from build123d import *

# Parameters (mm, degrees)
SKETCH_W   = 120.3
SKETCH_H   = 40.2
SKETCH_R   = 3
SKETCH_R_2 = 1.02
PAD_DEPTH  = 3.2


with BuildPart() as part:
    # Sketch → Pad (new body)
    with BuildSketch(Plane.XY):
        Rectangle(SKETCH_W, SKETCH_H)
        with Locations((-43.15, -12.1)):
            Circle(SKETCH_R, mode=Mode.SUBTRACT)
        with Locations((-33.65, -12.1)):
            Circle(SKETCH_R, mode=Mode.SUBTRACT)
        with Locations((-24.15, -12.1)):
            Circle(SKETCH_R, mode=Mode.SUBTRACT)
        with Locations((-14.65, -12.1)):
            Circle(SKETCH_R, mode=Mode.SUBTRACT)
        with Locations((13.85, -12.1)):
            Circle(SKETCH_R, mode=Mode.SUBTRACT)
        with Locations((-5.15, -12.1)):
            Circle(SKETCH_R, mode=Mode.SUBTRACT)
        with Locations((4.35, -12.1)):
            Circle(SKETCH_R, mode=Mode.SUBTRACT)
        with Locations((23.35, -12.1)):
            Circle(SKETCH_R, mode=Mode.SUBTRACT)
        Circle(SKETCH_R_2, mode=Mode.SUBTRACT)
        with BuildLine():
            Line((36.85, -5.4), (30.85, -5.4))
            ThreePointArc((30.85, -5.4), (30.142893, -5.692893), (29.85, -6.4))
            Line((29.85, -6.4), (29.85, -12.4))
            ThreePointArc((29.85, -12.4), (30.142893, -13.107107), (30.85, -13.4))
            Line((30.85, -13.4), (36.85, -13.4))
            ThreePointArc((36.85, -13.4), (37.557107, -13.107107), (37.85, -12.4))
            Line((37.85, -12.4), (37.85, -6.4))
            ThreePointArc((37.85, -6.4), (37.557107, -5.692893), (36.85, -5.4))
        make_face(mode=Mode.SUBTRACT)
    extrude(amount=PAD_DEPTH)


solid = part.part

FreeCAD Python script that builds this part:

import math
import FreeCAD as App
import Part
import Sketcher

V = App.Vector
Q = App.Units.Quantity


def add_polygon(sketch, points):
    """Adds a closed chain of lines whose ends are joined by coincident constraints."""
    first, n = sketch.GeometryCount, len(points)
    for a, b in zip(points, points[1:] + points[:1]):
        sketch.addGeometry(Part.LineSegment(App.Vector(*a, 0), App.Vector(*b, 0)), False)
    for i in range(n):
        sketch.addConstraint(Sketcher.Constraint("Coincident", first + i, 2, first + (i + 1) % n, 1))

doc = App.newDocument("Part")
body = doc.addObject("PartDesign::Body", "Body")

# Sketch on XY plane
sketch1 = doc.addObject("Sketcher::SketchObject", "Sketch")
body.addObject(sketch1)
sketch1.AttachmentSupport = (doc.XY_Plane, [""])
sketch1.MapMode = "FlatFace"
add_polygon(sketch1, [(-60.15, 20.1), (-60.15, -20.1), (60.15, -20.1), (60.15, 20.1)])  # lines 0-3
sketch1.addGeometry(Part.Circle(V(-43.15, -12.1, 0), V(0, 0, 1), 3), False)  # 4
sketch1.addGeometry(Part.Circle(V(-33.65, -12.1, 0), V(0, 0, 1), 3), False)  # 5
sketch1.addGeometry(Part.Circle(V(-24.15, -12.1, 0), V(0, 0, 1), 3), False)  # 6
sketch1.addGeometry(Part.Circle(V(-14.65, -12.1, 0), V(0, 0, 1), 3), False)  # 7
sketch1.addGeometry(Part.Circle(V(-5.15, -12.1, 0), V(0, 0, 1), 3), False)  # 8
sketch1.addGeometry(Part.Circle(V(4.35, -12.1, 0), V(0, 0, 1), 3), False)  # 9
sketch1.addGeometry(Part.Circle(V(13.85, -12.1, 0), V(0, 0, 1), 3), False)  # 10
sketch1.addGeometry(Part.Circle(V(23.35, -12.1, 0), V(0, 0, 1), 3), False)  # 11
sketch1.addGeometry(Part.LineSegment(V(30.85, -5.4, 0), V(36.85, -5.4, 0)), False)  # 12
sketch1.addGeometry(Part.ArcOfCircle(Part.Circle(V(36.850001, -6.399999, 0), V(0, 0, 1), 0.999999), math.radians(-0.000043), math.radians(90.000043)), False)  # 13
sketch1.addGeometry(Part.LineSegment(V(37.85, -6.4, 0), V(37.85, -12.4, 0)), False)  # 14
sketch1.addGeometry(Part.ArcOfCircle(Part.Circle(V(36.850001, -12.400001, 0), V(0, 0, 1), 0.999999), math.radians(-90.000043), math.radians(0.000043)), False)  # 15
sketch1.addGeometry(Part.LineSegment(V(36.85, -13.4, 0), V(30.85, -13.4, 0)), False)  # 16
sketch1.addGeometry(Part.ArcOfCircle(Part.Circle(V(30.849999, -12.400001, 0), V(0, 0, 1), 0.999999), math.radians(179.999957), math.radians(270.000043)), False)  # 17
sketch1.addGeometry(Part.LineSegment(V(29.85, -12.4, 0), V(29.85, -6.4, 0)), False)  # 18
sketch1.addGeometry(Part.ArcOfCircle(Part.Circle(V(30.849999, -6.399999, 0), V(0, 0, 1), 0.999999), math.radians(89.999957), math.radians(180.000043)), False)  # 19
sketch1.addGeometry(Part.Circle(V(0, 0, 0), V(0, 0, 1), 1.02), False)  # 20
sketch1.addConstraint([
    Sketcher.Constraint("Tangent", 12, 2, 13, 2),
    Sketcher.Constraint("Tangent", 13, 1, 14, 1),
    Sketcher.Constraint("Tangent", 14, 2, 15, 2),
    Sketcher.Constraint("Tangent", 15, 1, 16, 1),
    Sketcher.Constraint("Tangent", 16, 2, 17, 2),
    Sketcher.Constraint("Tangent", 17, 1, 18, 1),
    Sketcher.Constraint("Tangent", 18, 2, 19, 2),
    Sketcher.Constraint("Tangent", 19, 1, 12, 1),
    Sketcher.Constraint("Vertical", 0),
    Sketcher.Constraint("Horizontal", 1),
    Sketcher.Constraint("Vertical", 2),
    Sketcher.Constraint("Horizontal", 3),
    Sketcher.Constraint("Horizontal", 12),
    Sketcher.Constraint("Vertical", 14),
    Sketcher.Constraint("Horizontal", 16),
    Sketcher.Constraint("Vertical", 18),
    Sketcher.Constraint("Coincident", 20, 3, -1, 1),
    Sketcher.Constraint("Equal", 4, 5),
    Sketcher.Constraint("Equal", 5, 6),
    Sketcher.Constraint("Equal", 6, 7),
    Sketcher.Constraint("Equal", 7, 8),
    Sketcher.Constraint("Equal", 8, 9),
    Sketcher.Constraint("Equal", 9, 10),
    Sketcher.Constraint("Equal", 10, 11),
    Sketcher.Constraint("Equal", 13, 15),
    Sketcher.Constraint("Equal", 15, 17),
    Sketcher.Constraint("Equal", 17, 19),
    Sketcher.Constraint("Symmetric", 0, 2, 2, 2, -1, 1),
    Sketcher.Constraint("Horizontal", 4, 3, 5, 3),
    Sketcher.Constraint("Horizontal", 5, 3, 6, 3),
    Sketcher.Constraint("Horizontal", 6, 3, 7, 3),
    Sketcher.Constraint("Horizontal", 7, 3, 8, 3),
    Sketcher.Constraint("Horizontal", 8, 3, 9, 3),
    Sketcher.Constraint("Horizontal", 9, 3, 10, 3),
    Sketcher.Constraint("Horizontal", 10, 3, 11, 3),
    Sketcher.Constraint("Equal", 16, 14),
    Sketcher.Constraint("Diameter", 4, Q("6 mm")),
    Sketcher.Constraint("Radius", 13, Q("0.999999 mm")),
    Sketcher.Constraint("Diameter", 20, Q("2.04 mm")),
    Sketcher.Constraint("DistanceX", 12, 1, 12, 2, Q("6 mm")),
    Sketcher.Constraint("DistanceX", 1, 1, 1, 2, Q("120.3 mm")),
    Sketcher.Constraint("DistanceY", 0, 2, 0, 1, Q("40.2 mm")),
    Sketcher.Constraint("DistanceX", 4, 3, 6, 3, Q("19 mm")),
    Sketcher.Constraint("DistanceX", 5, 3, 7, 3, Q("19 mm")),
    Sketcher.Constraint("DistanceX", 6, 3, 8, 3, Q("19 mm")),
    Sketcher.Constraint("DistanceX", 7, 3, 9, 3, Q("19 mm")),
    Sketcher.Constraint("DistanceX", 8, 3, 10, 3, Q("19 mm")),
    Sketcher.Constraint("DistanceX", 9, 3, 11, 3, Q("19 mm")),
    Sketcher.Constraint("DistanceX", 10, 3, 13, 3, Q("23.000001 mm")),
    Sketcher.Constraint("DistanceX", 0, 2, 4, 3, Q("17 mm")),
    Sketcher.Constraint("DistanceY", 0, 2, 4, 3, Q("8 mm")),
    Sketcher.Constraint("DistanceY", 13, 3, -1, 1, Q("6.399999 mm")),
    Sketcher.Constraint("DistanceX", 4, 3, 5, 3, Q("9.5 mm")),
])
pad1 = doc.addObject("PartDesign::Pad", "Pad")
body.addObject(pad1)
pad1.Profile = sketch1
pad1.Length = 3.2

doc.recompute()
